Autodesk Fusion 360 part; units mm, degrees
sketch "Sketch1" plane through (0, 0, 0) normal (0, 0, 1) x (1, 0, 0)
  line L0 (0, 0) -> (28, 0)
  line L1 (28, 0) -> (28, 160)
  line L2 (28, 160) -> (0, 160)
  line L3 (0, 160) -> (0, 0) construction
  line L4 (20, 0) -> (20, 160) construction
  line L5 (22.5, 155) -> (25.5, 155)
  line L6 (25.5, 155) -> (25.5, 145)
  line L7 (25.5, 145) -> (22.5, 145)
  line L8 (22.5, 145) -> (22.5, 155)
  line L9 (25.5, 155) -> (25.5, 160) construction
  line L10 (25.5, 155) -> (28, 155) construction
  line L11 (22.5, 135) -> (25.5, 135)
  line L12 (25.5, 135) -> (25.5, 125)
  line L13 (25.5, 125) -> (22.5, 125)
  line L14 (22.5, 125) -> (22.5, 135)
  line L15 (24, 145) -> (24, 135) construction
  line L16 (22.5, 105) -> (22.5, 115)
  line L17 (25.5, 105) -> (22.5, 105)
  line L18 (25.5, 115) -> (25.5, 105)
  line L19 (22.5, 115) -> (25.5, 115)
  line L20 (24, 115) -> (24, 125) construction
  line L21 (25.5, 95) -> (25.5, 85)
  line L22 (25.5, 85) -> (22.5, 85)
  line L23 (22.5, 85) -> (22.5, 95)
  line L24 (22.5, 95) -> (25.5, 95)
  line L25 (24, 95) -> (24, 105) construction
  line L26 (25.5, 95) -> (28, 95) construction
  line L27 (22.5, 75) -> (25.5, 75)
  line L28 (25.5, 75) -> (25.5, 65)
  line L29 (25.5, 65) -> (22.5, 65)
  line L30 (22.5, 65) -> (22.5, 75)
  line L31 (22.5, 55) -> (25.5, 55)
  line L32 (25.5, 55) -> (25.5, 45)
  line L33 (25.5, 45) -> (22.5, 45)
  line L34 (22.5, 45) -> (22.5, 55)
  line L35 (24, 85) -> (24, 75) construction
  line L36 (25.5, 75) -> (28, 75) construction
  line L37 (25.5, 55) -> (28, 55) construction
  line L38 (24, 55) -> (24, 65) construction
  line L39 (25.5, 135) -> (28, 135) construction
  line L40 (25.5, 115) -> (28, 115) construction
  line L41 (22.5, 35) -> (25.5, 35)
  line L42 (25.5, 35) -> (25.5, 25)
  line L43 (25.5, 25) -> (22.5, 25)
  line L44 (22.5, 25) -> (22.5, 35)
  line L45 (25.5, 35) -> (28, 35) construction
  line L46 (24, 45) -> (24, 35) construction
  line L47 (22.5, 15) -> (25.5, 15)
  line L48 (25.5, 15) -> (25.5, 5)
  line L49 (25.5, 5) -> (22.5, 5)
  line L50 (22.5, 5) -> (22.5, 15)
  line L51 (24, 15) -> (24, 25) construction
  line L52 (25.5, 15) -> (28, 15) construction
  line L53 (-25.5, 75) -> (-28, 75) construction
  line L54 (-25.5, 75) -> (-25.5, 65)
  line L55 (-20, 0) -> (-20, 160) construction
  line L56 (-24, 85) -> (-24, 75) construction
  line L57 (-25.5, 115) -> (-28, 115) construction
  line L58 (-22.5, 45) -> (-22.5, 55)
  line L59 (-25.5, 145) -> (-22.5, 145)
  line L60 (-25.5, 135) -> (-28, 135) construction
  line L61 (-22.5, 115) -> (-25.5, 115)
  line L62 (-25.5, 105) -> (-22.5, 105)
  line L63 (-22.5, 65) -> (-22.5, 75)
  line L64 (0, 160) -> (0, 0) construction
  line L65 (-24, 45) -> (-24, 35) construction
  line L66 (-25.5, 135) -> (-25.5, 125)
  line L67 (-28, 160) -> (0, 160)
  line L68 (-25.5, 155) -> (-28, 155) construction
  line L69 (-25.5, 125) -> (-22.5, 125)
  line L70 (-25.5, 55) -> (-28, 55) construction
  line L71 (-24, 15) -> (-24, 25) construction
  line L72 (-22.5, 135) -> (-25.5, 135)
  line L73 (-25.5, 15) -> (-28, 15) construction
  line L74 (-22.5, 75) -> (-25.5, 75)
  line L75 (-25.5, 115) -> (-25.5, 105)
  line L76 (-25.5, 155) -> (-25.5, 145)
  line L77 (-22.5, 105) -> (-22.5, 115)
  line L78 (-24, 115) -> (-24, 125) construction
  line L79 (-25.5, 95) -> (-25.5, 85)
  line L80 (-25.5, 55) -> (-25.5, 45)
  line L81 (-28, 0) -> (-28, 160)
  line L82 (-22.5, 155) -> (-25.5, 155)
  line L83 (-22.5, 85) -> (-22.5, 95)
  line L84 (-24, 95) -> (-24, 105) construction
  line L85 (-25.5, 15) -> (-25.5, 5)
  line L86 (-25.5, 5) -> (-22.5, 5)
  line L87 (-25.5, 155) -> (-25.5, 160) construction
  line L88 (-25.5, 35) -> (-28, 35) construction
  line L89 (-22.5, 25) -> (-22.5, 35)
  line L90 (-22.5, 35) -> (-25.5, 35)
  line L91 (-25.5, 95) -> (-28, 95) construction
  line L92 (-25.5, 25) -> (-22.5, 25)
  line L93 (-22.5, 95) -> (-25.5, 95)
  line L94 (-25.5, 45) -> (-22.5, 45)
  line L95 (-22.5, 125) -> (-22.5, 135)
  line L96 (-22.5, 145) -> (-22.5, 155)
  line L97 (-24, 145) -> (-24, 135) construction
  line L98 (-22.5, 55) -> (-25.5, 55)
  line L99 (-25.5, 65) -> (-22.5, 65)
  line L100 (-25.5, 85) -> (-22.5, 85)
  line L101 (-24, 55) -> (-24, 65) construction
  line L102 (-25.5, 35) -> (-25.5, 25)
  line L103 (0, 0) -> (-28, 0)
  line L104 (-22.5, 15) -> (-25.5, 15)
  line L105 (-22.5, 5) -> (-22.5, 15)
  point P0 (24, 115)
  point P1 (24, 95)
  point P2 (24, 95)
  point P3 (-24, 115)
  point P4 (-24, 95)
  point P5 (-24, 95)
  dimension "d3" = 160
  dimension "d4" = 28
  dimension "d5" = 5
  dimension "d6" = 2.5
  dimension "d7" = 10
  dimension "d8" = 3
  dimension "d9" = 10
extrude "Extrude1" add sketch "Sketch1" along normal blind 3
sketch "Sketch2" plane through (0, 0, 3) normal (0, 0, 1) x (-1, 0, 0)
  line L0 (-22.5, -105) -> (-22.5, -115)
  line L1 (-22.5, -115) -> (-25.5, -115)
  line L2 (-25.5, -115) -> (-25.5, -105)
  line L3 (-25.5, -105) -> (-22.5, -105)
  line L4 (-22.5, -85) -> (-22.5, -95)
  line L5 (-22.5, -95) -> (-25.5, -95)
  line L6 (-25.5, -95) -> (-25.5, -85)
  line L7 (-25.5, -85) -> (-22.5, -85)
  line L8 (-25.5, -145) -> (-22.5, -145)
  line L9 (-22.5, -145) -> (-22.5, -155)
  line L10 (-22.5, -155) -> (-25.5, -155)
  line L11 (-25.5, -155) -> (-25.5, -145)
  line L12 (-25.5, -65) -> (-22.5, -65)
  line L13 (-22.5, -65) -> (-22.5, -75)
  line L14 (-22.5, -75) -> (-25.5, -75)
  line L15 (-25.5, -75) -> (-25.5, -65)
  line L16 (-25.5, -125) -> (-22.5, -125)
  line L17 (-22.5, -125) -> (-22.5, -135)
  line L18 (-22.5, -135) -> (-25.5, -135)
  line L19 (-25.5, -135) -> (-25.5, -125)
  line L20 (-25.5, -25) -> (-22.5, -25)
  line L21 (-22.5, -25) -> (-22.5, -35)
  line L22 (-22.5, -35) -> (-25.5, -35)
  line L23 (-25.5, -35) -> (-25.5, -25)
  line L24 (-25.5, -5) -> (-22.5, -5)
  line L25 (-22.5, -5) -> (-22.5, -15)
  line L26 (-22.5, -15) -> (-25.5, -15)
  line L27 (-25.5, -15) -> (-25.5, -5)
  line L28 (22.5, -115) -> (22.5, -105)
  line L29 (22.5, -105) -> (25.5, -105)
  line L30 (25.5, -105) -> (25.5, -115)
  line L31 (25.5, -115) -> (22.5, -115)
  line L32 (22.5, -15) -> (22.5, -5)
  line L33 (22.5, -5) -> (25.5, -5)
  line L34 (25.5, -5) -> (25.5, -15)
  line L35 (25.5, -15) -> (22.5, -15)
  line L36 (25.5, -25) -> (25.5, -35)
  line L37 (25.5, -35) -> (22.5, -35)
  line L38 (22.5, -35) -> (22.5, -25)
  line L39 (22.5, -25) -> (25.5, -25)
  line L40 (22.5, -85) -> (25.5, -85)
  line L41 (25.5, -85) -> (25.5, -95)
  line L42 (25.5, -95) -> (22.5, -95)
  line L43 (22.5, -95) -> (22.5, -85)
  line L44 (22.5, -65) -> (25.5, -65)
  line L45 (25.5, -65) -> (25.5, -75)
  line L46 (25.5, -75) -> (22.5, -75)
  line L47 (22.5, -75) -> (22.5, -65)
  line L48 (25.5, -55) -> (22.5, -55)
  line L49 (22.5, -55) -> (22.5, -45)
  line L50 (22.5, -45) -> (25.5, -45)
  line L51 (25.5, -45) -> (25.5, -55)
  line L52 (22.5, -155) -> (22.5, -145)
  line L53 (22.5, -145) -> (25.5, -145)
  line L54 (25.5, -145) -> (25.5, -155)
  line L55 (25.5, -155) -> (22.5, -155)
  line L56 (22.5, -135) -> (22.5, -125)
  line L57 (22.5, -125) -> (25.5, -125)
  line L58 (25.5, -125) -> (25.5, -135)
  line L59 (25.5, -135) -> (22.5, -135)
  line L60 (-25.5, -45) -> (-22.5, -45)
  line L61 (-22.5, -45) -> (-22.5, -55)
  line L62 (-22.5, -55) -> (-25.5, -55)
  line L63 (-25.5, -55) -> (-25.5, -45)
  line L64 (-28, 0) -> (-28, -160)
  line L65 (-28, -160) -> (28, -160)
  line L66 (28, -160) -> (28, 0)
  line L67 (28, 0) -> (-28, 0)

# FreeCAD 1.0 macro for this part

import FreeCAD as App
import Part
import Sketcher
from FreeCAD import Vector


def add_polygon(sketch, points):
    """Adds a closed chain of lines whose ends are joined by coincident constraints."""
    first, n = sketch.GeometryCount, len(points)
    for a, b in zip(points, points[1:] + points[:1]):
        sketch.addGeometry(Part.LineSegment(App.Vector(*a, 0), App.Vector(*b, 0)), False)
    for i in range(n):
        sketch.addConstraint(Sketcher.Constraint("Coincident", first + i, 2, first + (i + 1) % n, 1))

doc = App.newDocument("Part")
body = doc.addObject("PartDesign::Body", "Body")

sketch1 = body.newObject("Sketcher::SketchObject", "Sketch")
sketch1.AttachmentSupport = (doc.getObject("XY_Plane"), [""])
sketch1.MapMode = "FlatFace"
add_polygon(sketch1, [(-28, 0), (28, 0), (28, 160), (-28, 160)])
add_polygon(sketch1, [(-25.5, 5), (-25.5, 15), (-22.5, 15), (-22.5, 5)])
add_polygon(sketch1, [(-22.5, 35), (-22.5, 25), (-25.5, 25), (-25.5, 35)])
add_polygon(sketch1, [(-22.5, 55), (-22.5, 45), (-25.5, 45), (-25.5, 55)])
add_polygon(sketch1, [(-25.5, 65), (-25.5, 75), (-22.5, 75), (-22.5, 65)])
add_polygon(sketch1, [(22.5, 5), (22.5, 15), (25.5, 15), (25.5, 5)])
add_polygon(sketch1, [(22.5, 25), (22.5, 35), (25.5, 35), (25.5, 25)])
add_polygon(sketch1, [(22.5, 45), (22.5, 55), (25.5, 55), (25.5, 45)])
add_polygon(sketch1, [(22.5, 65), (22.5, 75), (25.5, 75), (25.5, 65)])
add_polygon(sketch1, [(-25.5, 85), (-25.5, 95), (-22.5, 95), (-22.5, 85)])
add_polygon(sketch1, [(-25.5, 115), (-22.5, 115), (-22.5, 105), (-25.5, 105)])
add_polygon(sketch1, [(-25.5, 125), (-25.5, 135), (-22.5, 135), (-22.5, 125)])
add_polygon(sketch1, [(-22.5, 145), (-25.5, 145), (-25.5, 155), (-22.5, 155)])
add_polygon(sketch1, [(22.5, 95), (25.5, 95), (25.5, 85), (22.5, 85)])
add_polygon(sketch1, [(25.5, 105), (22.5, 105), (22.5, 115), (25.5, 115)])
add_polygon(sketch1, [(22.5, 125), (22.5, 135), (25.5, 135), (25.5, 125)])
add_polygon(sketch1, [(22.5, 145), (22.5, 155), (25.5, 155), (25.5, 145)])
sketch1.addConstraint([
    Sketcher.Constraint("Horizontal", 0),
    Sketcher.Constraint("Vertical", 1),
    Sketcher.Constraint("Horizontal", 2),
    Sketcher.Constraint("Vertical", 3),
    Sketcher.Constraint("Vertical", 4),
    Sketcher.Constraint("Horizontal", 5),
    Sketcher.Constraint("Vertical", 6),
    Sketcher.Constraint("Horizontal", 7),
    Sketcher.Constraint("Vertical", 8),
    Sketcher.Constraint("Horizontal", 9),
    Sketcher.Constraint("Vertical", 10),
    Sketcher.Constraint("Horizontal", 11),
    Sketcher.Constraint("Vertical", 12),
    Sketcher.Constraint("Horizontal", 13),
    Sketcher.Constraint("Vertical", 14),
    Sketcher.Constraint("Horizontal", 15),
    Sketcher.Constraint("Vertical", 16),
    Sketcher.Constraint("Horizontal", 17),
    Sketcher.Constraint("Vertical", 18),
    Sketcher.Constraint("Horizontal", 19),
    Sketcher.Constraint("Vertical", 20),
    Sketcher.Constraint("Horizontal", 21),
    Sketcher.Constraint("Vertical", 22),
    Sketcher.Constraint("Horizontal", 23),
    Sketcher.Constraint("Vertical", 24),
    Sketcher.Constraint("Horizontal", 25),
    Sketcher.Constraint("Vertical", 26),
    Sketcher.Constraint("Horizontal", 27),
    Sketcher.Constraint("Vertical", 28),
    Sketcher.Constraint("Horizontal", 29),
    Sketcher.Constraint("Vertical", 30),
    Sketcher.Constraint("Horizontal", 31),
    Sketcher.Constraint("Vertical", 32),
    Sketcher.Constraint("Horizontal", 33),
    Sketcher.Constraint("Vertical", 34),
    Sketcher.Constraint("Horizontal", 35),
    Sketcher.Constraint("Vertical", 36),
    Sketcher.Constraint("Horizontal", 37),
    Sketcher.Constraint("Vertical", 38),
    Sketcher.Constraint("Horizontal", 39),
    Sketcher.Constraint("Horizontal", 40),
    Sketcher.Constraint("Vertical", 41),
    Sketcher.Constraint("Horizontal", 42),
    Sketcher.Constraint("Vertical", 43),
    Sketcher.Constraint("Vertical", 44),
    Sketcher.Constraint("Horizontal", 45),
    Sketcher.Constraint("Vertical", 46),
    Sketcher.Constraint("Horizontal", 47),
    Sketcher.Constraint("Horizontal", 48),
    Sketcher.Constraint("Vertical", 49),
    Sketcher.Constraint("Horizontal", 50),
    Sketcher.Constraint("Vertical", 51),
    Sketcher.Constraint("Horizontal", 52),
    Sketcher.Constraint("Vertical", 53),
    Sketcher.Constraint("Horizontal", 54),
    Sketcher.Constraint("Vertical", 55),
    Sketcher.Constraint("Horizontal", 56),
    Sketcher.Constraint("Vertical", 57),
    Sketcher.Constraint("Horizontal", 58),
    Sketcher.Constraint("Vertical", 59),
    Sketcher.Constraint("Vertical", 60),
    Sketcher.Constraint("Horizontal", 61),
    Sketcher.Constraint("Vertical", 62),
    Sketcher.Constraint("Horizontal", 63),
    Sketcher.Constraint("Vertical", 64),
    Sketcher.Constraint("Horizontal", 65),
    Sketcher.Constraint("Vertical", 66),
    Sketcher.Constraint("Horizontal", 67),
    Sketcher.Constraint("Symmetric", 0, 2, 3, 2, -1, 1),
    Sketcher.Constraint("Symmetric", 5, 2, 20, 2, -2),
    Sketcher.Constraint("Symmetric", 7, 2, 22, 2, -2),
    Sketcher.Constraint("Symmetric", 11, 2, 24, 2, -2),
    Sketcher.Constraint("Symmetric", 9, 2, 26, 2, -2),
    Sketcher.Constraint("Symmetric", 15, 2, 28, 2, -2),
    Sketcher.Constraint("Symmetric", 13, 2, 30, 2, -2),
    Sketcher.Constraint("Symmetric", 17, 2, 32, 2, -2),
    Sketcher.Constraint("Symmetric", 19, 2, 34, 2, -2),
    Sketcher.Constraint("Symmetric", 36, 2, 52, 2, -2),
    Sketcher.Constraint("Symmetric", 38, 2, 54, 2, -2),
    Sketcher.Constraint("Symmetric", 41, 2, 56, 2, -2),
    Sketcher.Constraint("Symmetric", 43, 2, 58, 2, -2),
    Sketcher.Constraint("Symmetric", 45, 2, 60, 2, -2),
    Sketcher.Constraint("Symmetric", 47, 2, 62, 2, -2),
    Sketcher.Constraint("Symmetric", 50, 2, 64, 2, -2),
    Sketcher.Constraint("Symmetric", 48, 2, 66, 2, -2),
    Sketcher.Constraint("Vertical", 6, 2, 8, 2),
    Sketcher.Constraint("Vertical", 7, 2, 9, 2),
    Sketcher.Constraint("Vertical", 11, 2, 12, 2),
    Sketcher.Constraint("Vertical", 10, 2, 13, 2),
    Sketcher.Constraint("Vertical", 14, 2, 16, 2),
    Sketcher.Constraint("Vertical", 15, 2, 17, 2),
    Sketcher.Constraint("Vertical", 19, 2, 36, 2),
    Sketcher.Constraint("Vertical", 18, 2, 37, 2),
    Sketcher.Constraint("Vertical", 38, 2, 40, 2),
    Sketcher.Constraint("Vertical", 39, 2, 42, 2),
    Sketcher.Constraint("Vertical", 43, 2, 44, 2),
    Sketcher.Constraint("Vertical", 41, 2, 45, 2),
    Sketcher.Constraint("Vertical", 47, 2, 48, 2),
    Sketcher.Constraint("Vertical", 46, 2, 50, 2),
    Sketcher.Constraint("Equal", 6, 8),
    Sketcher.Constraint("Equal", 10, 12),
    Sketcher.Constraint("Equal", 14, 16),
    Sketcher.Constraint("Equal", 34, 36),
    Sketcher.Constraint("Equal", 38, 41),
    Sketcher.Constraint("Equal", 43, 44),
    Sketcher.Constraint("Equal", 46, 49),
    Sketcher.Constraint("DistanceX", 5, 1, 5, 2, 3.0),
    Sketcher.Constraint("DistanceY", 1, 1, 1, 2, 160.0),
    Sketcher.Constraint("DistanceY", 4, 1, 4, 2, 10.0),
    Sketcher.Constraint("DistanceX", -1, 1, 0, 2, 28.0),
    Sketcher.Constraint("DistanceY", -1, 1, 6, 2, 5.0),
    Sketcher.Constraint("DistanceY", -1, 1, 8, 2, 25.0),
    Sketcher.Constraint("DistanceY", -1, 1, 12, 2, 45.0),
    Sketcher.Constraint("DistanceY", -1, 1, 16, 2, 75.0),
    Sketcher.Constraint("DistanceY", -1, 1, 36, 2, 95.0),
    Sketcher.Constraint("DistanceY", -1, 1, 40, 2, 115.0),
    Sketcher.Constraint("DistanceY", -1, 1, 44, 2, 135.0),
    Sketcher.Constraint("DistanceY", -1, 1, 48, 2, 145.0),
    Sketcher.Constraint("DistanceX", 4, 2, -1, 1, 25.5),
])
pad1 = body.newObject("PartDesign::Pad", "Pad")
pad1.Profile = sketch1
pad1.Length = 3

doc.recompute()
